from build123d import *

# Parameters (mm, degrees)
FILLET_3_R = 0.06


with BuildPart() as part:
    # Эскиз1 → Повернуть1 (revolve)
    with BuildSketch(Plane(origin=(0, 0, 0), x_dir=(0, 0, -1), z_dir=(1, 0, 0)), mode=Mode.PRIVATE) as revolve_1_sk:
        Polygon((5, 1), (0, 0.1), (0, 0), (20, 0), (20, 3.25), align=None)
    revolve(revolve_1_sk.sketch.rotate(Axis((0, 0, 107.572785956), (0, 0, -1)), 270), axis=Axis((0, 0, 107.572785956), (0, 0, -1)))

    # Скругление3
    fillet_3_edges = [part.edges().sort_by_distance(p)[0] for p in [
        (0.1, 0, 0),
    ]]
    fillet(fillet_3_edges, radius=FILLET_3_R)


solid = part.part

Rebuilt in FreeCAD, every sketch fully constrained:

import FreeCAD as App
import Part
import Sketcher
from FreeCAD import Vector
Q = App.Units.Quantity


def edges_at(feature, points):
    """Names of the edges that pass closest to the given points."""
    edges = feature.Shape.Edges
    near = lambda p: min(range(len(edges)), key=lambda i: edges[i].distToShape(Part.Vertex(*p))[0])
    return sorted({f"Edge{near(p) + 1}" for p in points})


def add_polygon(sketch, points):
    """Adds a closed chain of lines whose ends are joined by coincident constraints."""
    first, n = sketch.GeometryCount, len(points)
    for a, b in zip(points, points[1:] + points[:1]):
        sketch.addGeometry(Part.LineSegment(App.Vector(*a, 0), App.Vector(*b, 0)), False)
    for i in range(n):
        sketch.addConstraint(Sketcher.Constraint("Coincident", first + i, 2, first + (i + 1) % n, 1))

doc = App.newDocument("Part")
params = doc.addObject("Spreadsheet::Sheet", "Params")
for row, (alias, value) in enumerate([
    ("sketch1_height", "20 mm"),
    ("sketch1_width", "0.1 mm"),
    ("sketch1_width2", "3.25 mm"),
    ("revolution_angle", "360 deg"),
    ("fillet_radius", "0.06 mm"),
], start=1):
    params.set(f"A{row}", alias)
    params.set(f"B{row}", "=" + value)
    params.setAlias(f"B{row}", alias)

body = doc.addObject("PartDesign::Body", "Body")

# Sketch on YZ plane
sketch1 = body.newObject("Sketcher::SketchObject", "Sketch")
sketch1.AttachmentSupport = (doc.getObject("YZ_Plane"), [""])
sketch1.MapMode = "FlatFace"
add_polygon(sketch1, [(1, -5), (0.1, 0), (0, 0), (0, -20), (3.25, -20)])  # lines 0-4
sketch1.addConstraint([
    Sketcher.Constraint("Horizontal", 1),
    Sketcher.Constraint("Vertical", 2),
    Sketcher.Constraint("Horizontal", 3),
    Sketcher.Constraint("Coincident", 1, 2, -1, 1),
    Sketcher.Constraint("DistanceY", 2, 2, 2, 1, Q("20 mm")),
    Sketcher.Constraint("DistanceX", 1, 2, 1, 1, Q("0.1 mm")),
    Sketcher.Constraint("DistanceX", -1, 1, 4, 2, Q("1 mm")),
    Sketcher.Constraint("DistanceY", 4, 2, -1, 1, Q("5 mm")),
    Sketcher.Constraint("DistanceX", 3, 1, 3, 2, Q("3.25 mm")),
])
sketch1.setExpression("Constraints[9]", "Params.sketch1_height")
sketch1.setExpression("Constraints[10]", "Params.sketch1_width")
sketch1.setExpression("Constraints[13]", "Params.sketch1_width2")
revolution = body.newObject("PartDesign::Revolution", "Revolution")
revolution.Profile = sketch1
revolution.ReferenceAxis = (sketch1, ["V_Axis"])
revolution.setExpression("Angle", "Params.revolution_angle")
doc.recompute()

fillet = body.newObject("PartDesign::Fillet", "Fillet")
fillet.Base = (revolution, edges_at(revolution, [(0.1, 0, 0)]))
fillet.setExpression("Radius", "Params.fillet_radius")

doc.recompute()
